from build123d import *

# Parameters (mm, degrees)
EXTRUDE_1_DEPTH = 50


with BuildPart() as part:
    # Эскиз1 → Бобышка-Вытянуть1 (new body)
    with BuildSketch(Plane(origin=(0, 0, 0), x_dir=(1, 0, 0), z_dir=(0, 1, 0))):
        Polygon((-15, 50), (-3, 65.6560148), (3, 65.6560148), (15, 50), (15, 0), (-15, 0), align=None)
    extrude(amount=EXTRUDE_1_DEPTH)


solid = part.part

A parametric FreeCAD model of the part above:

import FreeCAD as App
import Part
import Sketcher
from FreeCAD import Vector

doc = App.newDocument("Part")
body = doc.addObject("PartDesign::Body", "Body")

# Sketch on XZ plane
sketch1 = doc.addObject("Sketcher::SketchObject", "Sketch")
body.addObject(sketch1)
sketch1.AttachmentSupport = (doc.XZ_Plane, [""])
sketch1.MapMode = "FlatFace"
sketch1.addGeometry([
    Part.LineSegment(Vector(-3, -66, 0), Vector(-15, -50, 0)),  # 0
    Part.LineSegment(Vector(-15, -50, 0), Vector(-15, 0, 0)),  # 1
    Part.LineSegment(Vector(-15, 0, 0), Vector(15, 0, 0)),  # 2
    Part.LineSegment(Vector(15, 0, 0), Vector(15, -50, 0)),  # 3
    Part.LineSegment(Vector(15, -50, 0), Vector(3, -66, 0)),  # 4
    Part.LineSegment(Vector(3, -66, 0), Vector(-3, -66, 0)),  # 5
], False)
sketch1.addConstraint([
    Sketcher.Constraint("Coincident", 0, 2, 1, 1),
    Sketcher.Constraint("Coincident", 1, 2, 2, 1),
    Sketcher.Constraint("Coincident", 2, 2, 3, 1),
    Sketcher.Constraint("Coincident", 3, 2, 4, 1),
    Sketcher.Constraint("Coincident", 4, 2, 5, 1),
    Sketcher.Constraint("Coincident", 5, 2, 0, 1),
    Sketcher.Constraint("Vertical", 1),
    Sketcher.Constraint("Horizontal", 2),
    Sketcher.Constraint("Vertical", 3),
    Sketcher.Constraint("Horizontal", 5),
    Sketcher.Constraint("Symmetric", 1, 2, 2, 2, -1, 1),
    Sketcher.Constraint("Horizontal", 0, 2, 3, 2),
    Sketcher.Constraint("Equal", 0, 4),
    Sketcher.Constraint("DistanceX", 2, 1, 2, 2, 30.0),
    Sketcher.Constraint("DistanceX", 5, 2, 5, 1, 6.0),
    Sketcher.Constraint("DistanceY", 1, 1, 1, 2, 50.0),
    Sketcher.Constraint("Distance", 0, 19.725892),
])
pad1 = doc.addObject("PartDesign::Pad", "Pad")
body.addObject(pad1)
pad1.Profile = sketch1
pad1.Length = 50
pad1.Reversed = True

doc.recompute()
